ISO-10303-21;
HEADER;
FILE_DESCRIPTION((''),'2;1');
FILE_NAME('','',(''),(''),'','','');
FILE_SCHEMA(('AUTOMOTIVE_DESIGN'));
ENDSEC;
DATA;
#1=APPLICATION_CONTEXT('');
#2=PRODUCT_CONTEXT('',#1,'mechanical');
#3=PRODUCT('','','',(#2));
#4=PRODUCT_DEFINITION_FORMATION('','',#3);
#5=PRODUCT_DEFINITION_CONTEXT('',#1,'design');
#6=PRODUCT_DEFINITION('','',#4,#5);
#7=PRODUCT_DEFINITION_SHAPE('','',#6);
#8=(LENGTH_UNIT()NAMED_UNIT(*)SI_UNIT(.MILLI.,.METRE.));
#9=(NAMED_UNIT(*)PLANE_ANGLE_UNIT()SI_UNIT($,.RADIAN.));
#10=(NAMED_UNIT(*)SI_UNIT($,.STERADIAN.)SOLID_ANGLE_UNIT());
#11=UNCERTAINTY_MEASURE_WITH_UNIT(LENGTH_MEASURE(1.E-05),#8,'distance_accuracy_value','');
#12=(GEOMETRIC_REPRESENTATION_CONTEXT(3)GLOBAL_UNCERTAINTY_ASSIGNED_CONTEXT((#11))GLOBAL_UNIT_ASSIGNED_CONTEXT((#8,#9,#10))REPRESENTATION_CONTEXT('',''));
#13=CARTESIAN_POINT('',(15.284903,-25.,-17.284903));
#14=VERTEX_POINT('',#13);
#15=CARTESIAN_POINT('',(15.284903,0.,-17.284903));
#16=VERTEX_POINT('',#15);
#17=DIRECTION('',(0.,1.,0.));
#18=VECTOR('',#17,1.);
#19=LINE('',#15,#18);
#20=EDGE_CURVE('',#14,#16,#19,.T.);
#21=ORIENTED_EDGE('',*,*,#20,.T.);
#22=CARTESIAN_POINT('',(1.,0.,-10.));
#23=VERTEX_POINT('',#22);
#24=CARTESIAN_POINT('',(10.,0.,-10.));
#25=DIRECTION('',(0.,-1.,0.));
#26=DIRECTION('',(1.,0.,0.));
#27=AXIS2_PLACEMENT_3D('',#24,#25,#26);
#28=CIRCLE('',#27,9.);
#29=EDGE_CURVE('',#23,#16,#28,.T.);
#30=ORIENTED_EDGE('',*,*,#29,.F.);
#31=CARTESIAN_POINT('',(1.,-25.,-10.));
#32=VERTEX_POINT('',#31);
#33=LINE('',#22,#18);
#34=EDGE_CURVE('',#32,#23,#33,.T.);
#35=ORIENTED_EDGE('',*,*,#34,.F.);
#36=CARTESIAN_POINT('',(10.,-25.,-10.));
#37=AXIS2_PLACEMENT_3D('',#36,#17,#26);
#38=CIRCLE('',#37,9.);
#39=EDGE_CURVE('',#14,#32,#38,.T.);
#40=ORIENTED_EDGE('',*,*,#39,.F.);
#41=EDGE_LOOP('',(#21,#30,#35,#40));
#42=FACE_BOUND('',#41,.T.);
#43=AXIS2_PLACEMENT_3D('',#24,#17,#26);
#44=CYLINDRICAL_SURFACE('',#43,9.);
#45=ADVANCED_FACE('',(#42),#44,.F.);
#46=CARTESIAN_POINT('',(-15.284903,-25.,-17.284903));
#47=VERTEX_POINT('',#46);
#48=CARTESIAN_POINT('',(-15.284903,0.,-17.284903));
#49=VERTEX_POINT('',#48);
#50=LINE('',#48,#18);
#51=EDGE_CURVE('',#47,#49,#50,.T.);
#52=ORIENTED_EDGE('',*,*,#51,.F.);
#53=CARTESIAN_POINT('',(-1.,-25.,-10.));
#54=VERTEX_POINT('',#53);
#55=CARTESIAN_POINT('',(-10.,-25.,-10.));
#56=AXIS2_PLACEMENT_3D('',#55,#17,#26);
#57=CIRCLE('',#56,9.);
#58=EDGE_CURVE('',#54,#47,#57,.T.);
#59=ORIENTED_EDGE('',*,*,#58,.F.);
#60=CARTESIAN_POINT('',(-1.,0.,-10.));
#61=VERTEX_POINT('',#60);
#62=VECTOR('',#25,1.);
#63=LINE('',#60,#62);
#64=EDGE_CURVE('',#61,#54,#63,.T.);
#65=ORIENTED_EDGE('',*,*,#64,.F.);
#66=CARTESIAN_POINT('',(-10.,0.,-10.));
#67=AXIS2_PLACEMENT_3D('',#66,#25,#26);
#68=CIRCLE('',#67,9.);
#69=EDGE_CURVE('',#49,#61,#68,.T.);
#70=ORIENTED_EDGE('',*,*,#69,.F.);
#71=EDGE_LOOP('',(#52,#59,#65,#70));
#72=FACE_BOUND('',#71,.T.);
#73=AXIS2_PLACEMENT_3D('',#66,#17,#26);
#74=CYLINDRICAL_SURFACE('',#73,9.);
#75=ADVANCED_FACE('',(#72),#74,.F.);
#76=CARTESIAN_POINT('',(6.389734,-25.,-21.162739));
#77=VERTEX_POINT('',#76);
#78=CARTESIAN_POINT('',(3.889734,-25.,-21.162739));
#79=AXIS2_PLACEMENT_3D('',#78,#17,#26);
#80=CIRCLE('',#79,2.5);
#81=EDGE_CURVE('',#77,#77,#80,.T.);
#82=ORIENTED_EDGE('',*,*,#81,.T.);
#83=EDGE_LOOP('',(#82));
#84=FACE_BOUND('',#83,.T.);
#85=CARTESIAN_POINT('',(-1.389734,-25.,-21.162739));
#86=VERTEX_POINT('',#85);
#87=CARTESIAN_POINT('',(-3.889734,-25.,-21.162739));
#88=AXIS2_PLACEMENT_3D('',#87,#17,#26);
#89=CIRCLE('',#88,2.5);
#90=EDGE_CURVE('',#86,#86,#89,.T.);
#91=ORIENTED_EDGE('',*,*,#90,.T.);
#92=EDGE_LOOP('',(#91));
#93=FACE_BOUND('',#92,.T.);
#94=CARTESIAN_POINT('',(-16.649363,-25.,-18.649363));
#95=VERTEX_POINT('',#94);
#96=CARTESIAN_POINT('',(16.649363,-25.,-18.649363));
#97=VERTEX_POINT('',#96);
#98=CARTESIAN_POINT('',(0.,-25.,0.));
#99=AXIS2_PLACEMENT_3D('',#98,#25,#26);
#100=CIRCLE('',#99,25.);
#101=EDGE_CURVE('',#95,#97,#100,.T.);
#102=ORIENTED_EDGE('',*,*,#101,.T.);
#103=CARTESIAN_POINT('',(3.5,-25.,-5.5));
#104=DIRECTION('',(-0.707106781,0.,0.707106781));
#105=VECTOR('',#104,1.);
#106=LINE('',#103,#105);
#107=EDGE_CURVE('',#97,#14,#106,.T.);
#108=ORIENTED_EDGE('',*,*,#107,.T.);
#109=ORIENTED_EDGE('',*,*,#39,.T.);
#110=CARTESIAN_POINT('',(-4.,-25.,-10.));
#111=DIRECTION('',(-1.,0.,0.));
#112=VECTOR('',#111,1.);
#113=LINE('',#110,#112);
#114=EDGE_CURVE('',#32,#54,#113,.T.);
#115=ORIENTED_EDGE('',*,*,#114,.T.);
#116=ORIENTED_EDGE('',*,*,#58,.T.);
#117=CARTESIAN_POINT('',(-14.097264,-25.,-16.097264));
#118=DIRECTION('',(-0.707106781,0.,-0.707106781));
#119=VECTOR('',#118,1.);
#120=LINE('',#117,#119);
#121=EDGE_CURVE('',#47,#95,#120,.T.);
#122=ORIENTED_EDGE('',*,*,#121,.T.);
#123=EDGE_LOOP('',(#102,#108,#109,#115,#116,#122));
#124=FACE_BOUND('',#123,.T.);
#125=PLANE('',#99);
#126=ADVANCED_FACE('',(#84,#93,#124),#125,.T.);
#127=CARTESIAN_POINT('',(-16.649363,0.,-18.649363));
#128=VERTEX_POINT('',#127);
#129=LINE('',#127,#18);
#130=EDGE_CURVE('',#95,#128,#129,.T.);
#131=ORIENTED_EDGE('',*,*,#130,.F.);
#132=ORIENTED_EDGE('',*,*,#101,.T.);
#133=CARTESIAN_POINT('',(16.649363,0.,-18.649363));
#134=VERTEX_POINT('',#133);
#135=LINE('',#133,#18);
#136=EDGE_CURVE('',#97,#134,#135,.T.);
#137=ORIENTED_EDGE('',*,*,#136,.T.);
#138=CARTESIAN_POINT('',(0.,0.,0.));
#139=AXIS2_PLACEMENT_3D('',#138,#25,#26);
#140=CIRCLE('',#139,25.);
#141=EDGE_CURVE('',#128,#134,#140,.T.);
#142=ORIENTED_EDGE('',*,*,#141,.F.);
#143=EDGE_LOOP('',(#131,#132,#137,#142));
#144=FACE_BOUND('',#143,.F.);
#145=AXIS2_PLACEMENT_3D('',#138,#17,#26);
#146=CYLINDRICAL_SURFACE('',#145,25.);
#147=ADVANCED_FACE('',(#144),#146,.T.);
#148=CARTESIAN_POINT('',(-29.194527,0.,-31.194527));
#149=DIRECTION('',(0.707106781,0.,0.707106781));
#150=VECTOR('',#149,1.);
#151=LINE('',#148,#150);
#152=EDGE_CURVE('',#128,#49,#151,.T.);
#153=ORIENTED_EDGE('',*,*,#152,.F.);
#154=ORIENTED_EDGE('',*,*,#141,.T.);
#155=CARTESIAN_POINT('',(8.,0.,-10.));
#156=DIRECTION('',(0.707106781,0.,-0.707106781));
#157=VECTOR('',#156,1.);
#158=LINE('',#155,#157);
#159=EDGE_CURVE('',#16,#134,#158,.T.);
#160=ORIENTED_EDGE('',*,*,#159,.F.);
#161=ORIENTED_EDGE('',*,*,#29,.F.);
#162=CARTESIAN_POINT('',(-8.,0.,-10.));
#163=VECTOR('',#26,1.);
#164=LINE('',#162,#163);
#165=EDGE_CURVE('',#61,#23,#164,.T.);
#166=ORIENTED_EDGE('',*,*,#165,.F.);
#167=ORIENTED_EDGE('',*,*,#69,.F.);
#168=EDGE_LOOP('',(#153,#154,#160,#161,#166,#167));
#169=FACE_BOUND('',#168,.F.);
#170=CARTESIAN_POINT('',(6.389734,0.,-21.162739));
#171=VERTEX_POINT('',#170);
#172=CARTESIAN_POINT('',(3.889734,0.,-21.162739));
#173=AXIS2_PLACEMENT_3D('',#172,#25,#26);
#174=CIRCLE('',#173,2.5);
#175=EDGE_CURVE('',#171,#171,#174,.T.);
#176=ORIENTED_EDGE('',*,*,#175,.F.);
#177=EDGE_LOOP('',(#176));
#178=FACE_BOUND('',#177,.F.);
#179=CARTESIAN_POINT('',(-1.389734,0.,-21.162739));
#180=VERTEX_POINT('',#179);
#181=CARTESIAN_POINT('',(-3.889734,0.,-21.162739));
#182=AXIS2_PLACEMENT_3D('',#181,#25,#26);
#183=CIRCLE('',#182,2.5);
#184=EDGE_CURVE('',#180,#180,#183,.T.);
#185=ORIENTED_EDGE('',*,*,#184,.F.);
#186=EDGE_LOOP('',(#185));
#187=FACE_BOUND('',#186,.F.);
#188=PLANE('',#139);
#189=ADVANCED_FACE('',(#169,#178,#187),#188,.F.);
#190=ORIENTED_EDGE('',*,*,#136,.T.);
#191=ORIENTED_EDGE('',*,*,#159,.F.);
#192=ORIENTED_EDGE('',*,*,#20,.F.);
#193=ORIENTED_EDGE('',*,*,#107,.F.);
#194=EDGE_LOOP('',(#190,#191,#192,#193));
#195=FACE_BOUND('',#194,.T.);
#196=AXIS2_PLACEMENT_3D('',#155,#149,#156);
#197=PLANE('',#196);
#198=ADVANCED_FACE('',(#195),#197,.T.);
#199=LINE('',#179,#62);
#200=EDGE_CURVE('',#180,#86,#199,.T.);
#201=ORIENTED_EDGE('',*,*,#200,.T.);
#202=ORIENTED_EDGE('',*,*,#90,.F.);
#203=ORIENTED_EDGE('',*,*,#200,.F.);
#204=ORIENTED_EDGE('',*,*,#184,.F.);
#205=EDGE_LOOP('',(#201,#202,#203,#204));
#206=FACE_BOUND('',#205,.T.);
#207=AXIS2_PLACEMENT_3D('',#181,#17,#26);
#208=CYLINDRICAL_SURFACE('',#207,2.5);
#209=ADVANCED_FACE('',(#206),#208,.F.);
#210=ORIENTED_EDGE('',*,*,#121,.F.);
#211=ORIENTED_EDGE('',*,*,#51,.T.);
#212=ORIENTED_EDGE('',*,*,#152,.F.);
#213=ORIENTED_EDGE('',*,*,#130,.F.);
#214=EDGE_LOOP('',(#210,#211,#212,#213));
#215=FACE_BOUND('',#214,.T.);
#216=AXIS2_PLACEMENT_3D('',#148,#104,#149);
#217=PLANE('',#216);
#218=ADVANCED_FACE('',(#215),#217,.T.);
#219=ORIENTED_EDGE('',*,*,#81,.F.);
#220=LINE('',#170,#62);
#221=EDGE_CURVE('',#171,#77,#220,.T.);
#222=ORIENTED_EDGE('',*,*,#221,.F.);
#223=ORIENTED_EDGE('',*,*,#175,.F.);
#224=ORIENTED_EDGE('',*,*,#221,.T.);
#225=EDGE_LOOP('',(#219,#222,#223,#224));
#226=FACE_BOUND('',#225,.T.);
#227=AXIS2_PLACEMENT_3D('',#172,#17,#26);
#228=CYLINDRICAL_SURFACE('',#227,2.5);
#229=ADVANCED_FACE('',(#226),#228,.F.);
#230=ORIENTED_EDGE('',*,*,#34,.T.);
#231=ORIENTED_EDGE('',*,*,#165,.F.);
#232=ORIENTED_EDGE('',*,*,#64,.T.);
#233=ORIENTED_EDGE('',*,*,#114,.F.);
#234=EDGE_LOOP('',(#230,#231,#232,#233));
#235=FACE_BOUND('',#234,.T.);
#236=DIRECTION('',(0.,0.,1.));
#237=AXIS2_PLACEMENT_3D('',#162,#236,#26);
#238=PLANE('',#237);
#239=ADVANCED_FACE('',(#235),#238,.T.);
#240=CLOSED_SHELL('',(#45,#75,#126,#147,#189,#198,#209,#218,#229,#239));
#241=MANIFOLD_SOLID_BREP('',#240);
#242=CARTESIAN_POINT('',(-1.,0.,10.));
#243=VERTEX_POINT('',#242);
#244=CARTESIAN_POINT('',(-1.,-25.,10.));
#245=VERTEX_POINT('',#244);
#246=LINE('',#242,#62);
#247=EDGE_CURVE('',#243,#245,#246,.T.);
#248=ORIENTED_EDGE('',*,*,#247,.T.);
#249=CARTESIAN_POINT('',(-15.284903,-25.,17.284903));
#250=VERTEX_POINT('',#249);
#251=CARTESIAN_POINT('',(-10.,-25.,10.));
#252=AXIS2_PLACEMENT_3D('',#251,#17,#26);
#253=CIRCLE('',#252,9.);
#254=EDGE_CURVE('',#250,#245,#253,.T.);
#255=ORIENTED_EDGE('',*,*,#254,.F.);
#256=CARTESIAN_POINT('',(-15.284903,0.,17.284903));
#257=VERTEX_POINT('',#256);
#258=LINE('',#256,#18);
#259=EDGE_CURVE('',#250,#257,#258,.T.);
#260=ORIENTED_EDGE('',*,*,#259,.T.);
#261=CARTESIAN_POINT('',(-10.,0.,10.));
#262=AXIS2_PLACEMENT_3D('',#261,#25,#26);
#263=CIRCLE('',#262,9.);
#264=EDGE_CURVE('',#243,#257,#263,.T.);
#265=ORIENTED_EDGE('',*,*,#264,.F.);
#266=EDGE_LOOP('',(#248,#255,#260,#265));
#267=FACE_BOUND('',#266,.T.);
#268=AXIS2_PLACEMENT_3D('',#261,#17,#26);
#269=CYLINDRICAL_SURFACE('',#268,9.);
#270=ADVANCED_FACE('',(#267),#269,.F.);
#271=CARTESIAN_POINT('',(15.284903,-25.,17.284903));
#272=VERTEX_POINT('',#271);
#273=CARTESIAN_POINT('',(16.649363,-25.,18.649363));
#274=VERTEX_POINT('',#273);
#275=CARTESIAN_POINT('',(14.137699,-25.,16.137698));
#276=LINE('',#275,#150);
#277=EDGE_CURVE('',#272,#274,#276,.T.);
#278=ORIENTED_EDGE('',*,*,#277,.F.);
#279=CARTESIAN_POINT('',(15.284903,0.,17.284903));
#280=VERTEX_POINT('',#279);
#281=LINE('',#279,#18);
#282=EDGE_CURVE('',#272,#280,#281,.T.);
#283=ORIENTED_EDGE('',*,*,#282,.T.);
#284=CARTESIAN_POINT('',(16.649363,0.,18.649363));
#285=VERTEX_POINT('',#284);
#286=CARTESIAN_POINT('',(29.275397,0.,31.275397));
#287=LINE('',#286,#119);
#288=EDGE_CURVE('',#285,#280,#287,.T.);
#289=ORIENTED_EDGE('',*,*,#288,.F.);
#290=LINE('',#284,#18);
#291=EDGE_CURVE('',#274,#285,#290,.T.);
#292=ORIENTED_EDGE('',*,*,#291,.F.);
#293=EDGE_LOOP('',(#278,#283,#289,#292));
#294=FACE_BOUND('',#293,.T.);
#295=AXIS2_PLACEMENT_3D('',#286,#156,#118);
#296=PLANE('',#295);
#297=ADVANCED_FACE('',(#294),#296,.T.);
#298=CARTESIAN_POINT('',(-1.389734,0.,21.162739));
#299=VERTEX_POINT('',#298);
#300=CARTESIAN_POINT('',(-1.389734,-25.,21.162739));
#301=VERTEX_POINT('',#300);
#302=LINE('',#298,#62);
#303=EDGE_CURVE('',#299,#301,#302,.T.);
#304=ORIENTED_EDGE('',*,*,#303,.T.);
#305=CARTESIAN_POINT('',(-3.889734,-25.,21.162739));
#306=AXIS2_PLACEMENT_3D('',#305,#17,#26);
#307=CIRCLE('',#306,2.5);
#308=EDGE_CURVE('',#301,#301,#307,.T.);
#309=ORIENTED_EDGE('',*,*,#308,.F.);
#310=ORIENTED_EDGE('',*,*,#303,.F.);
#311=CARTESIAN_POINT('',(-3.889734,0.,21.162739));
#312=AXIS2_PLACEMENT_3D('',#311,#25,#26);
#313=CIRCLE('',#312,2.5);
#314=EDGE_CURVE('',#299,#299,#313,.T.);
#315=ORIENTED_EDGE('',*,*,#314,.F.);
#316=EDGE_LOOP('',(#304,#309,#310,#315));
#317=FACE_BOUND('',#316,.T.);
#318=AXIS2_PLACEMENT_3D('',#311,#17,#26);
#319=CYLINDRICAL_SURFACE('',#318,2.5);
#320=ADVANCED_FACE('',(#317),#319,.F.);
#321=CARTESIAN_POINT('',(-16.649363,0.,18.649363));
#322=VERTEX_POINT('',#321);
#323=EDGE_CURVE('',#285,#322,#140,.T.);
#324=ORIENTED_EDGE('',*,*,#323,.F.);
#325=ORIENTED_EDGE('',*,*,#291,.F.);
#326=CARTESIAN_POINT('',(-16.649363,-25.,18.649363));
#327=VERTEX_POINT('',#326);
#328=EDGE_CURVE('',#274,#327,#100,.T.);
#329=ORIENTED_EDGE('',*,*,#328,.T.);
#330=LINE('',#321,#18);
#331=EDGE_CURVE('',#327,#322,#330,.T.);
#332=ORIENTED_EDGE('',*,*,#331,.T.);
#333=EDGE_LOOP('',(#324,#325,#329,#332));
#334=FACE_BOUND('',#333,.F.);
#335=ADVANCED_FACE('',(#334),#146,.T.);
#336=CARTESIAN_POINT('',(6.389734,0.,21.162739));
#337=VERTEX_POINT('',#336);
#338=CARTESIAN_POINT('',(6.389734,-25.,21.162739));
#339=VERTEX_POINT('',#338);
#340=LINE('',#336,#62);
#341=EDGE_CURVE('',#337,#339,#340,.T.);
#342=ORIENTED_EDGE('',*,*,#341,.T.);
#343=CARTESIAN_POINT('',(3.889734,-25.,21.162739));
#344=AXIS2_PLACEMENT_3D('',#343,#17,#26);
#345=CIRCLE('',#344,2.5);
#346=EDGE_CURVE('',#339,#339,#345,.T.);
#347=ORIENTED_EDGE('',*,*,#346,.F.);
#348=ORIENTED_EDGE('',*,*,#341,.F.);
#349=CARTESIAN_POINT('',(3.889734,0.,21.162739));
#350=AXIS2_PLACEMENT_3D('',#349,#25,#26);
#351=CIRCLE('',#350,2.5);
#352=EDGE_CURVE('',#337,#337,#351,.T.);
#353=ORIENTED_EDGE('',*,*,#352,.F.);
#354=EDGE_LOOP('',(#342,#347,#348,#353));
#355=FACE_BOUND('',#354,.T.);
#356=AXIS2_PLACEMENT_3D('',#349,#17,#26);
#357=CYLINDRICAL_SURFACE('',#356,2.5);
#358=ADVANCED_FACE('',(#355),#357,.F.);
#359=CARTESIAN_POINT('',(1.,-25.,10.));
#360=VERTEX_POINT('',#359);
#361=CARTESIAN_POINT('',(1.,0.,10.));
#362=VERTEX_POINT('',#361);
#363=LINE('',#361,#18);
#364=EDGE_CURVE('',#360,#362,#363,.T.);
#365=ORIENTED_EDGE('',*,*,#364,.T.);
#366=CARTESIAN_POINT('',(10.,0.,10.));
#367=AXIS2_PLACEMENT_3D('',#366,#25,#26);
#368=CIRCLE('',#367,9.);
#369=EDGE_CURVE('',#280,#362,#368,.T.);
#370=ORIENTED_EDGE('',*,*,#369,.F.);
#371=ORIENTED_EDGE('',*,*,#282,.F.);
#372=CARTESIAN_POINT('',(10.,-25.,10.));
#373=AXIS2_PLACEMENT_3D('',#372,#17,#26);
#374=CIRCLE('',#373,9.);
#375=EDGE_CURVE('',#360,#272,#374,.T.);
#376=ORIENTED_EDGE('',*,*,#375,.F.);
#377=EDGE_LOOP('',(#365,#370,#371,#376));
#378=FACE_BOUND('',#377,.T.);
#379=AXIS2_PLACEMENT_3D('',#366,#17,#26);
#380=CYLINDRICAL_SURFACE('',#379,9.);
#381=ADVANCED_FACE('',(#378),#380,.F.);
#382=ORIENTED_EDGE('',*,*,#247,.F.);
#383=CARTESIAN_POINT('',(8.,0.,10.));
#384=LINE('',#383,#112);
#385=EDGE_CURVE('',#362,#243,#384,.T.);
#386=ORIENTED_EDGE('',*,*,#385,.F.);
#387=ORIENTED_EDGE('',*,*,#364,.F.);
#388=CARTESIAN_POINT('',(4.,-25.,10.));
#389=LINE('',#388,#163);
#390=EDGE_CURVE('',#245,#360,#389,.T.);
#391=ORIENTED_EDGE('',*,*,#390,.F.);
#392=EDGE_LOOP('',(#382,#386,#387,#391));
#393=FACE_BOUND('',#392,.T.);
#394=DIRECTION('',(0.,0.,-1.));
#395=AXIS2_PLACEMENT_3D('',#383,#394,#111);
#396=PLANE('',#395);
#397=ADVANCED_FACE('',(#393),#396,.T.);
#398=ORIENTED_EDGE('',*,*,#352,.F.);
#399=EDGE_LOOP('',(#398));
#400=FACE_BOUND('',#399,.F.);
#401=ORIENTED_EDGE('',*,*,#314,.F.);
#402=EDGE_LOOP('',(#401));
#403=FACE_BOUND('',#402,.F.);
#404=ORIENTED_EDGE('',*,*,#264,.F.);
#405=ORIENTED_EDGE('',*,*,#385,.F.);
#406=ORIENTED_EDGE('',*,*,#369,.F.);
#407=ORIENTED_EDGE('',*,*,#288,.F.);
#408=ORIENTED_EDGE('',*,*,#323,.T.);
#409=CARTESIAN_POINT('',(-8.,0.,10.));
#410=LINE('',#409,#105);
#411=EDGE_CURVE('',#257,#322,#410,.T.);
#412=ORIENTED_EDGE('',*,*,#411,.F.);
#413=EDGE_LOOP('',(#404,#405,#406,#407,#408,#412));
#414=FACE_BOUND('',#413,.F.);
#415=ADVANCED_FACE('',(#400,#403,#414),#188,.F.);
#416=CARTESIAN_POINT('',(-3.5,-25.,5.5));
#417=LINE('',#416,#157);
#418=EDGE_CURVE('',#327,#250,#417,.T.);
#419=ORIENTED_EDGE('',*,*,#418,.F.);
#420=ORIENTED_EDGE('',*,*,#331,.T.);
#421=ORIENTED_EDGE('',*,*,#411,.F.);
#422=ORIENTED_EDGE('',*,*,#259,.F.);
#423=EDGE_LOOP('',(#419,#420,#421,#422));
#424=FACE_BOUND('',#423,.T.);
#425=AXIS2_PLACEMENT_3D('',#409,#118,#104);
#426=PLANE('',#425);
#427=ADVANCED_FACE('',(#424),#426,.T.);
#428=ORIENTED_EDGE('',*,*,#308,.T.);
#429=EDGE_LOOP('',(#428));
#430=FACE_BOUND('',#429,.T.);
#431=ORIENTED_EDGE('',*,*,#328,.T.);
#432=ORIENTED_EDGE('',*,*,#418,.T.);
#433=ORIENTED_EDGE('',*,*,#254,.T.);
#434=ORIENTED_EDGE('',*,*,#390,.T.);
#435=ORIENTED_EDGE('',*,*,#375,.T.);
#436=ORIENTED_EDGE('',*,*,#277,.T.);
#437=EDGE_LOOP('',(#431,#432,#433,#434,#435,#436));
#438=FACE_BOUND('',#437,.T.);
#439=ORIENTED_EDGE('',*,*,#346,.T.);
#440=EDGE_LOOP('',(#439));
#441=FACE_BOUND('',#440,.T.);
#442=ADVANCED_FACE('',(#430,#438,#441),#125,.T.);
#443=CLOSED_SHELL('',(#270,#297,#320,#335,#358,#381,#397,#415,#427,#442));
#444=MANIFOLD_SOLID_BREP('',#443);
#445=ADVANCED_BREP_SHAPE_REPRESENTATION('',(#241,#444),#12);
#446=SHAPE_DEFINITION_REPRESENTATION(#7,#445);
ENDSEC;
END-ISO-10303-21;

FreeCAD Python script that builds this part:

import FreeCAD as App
import Part
import Sketcher
Q = App.Units.Quantity


def add_polygon(sketch, points):
    """Adds a closed chain of lines whose ends are joined by coincident constraints."""
    first, n = sketch.GeometryCount, len(points)
    for a, b in zip(points, points[1:] + points[:1]):
        sketch.addGeometry(Part.LineSegment(App.Vector(*a, 0), App.Vector(*b, 0)), False)
    for i in range(n):
        sketch.addConstraint(Sketcher.Constraint("Coincident", first + i, 2, first + (i + 1) % n, 1))

doc = App.newDocument("Part")
params = doc.addObject("Spreadsheet::Sheet", "Params")
for row, (alias, value) in enumerate([
    ("sketch1_diameter", "50 mm"),
    ("pad1_length", "25 mm"),
    ("sketch2_diameter", "18 mm"),
    ("pocket1_length", "27.8 mm"),
    ("sketch3_width", "16 mm"),
    ("pocket2_length", "27.8 mm"),
    ("sketch4_diameter", "5 mm"),
    ("pocket3_length", "45.7 mm"),
], start=1):
    params.set(f"A{row}", alias)
    params.set(f"B{row}", "=" + value)
    params.setAlias(f"B{row}", alias)

body = doc.addObject("PartDesign::Body", "Body")
body.AllowCompound = True

sketch1 = doc.addObject("Sketcher::SketchObject", "Sketch")
body.addObject(sketch1)
sketch1.AttachmentSupport = (doc.XZ_Plane, [""])
sketch1.MapMode = "FlatFace"
sketch1.addGeometry(Part.Circle(App.Vector(0, 0, 0), App.Vector(0, 0, 1), 25), False)
sketch1.addConstraint([
    Sketcher.Constraint("Coincident", 0, 3, -1, 1),
    Sketcher.Constraint("Diameter", 0, Q("50 mm")),
])
sketch1.setExpression("Constraints[1]", "Params.sketch1_diameter")
pad1 = doc.addObject("PartDesign::Pad", "Pad")
body.addObject(pad1)
pad1.Profile = sketch1
pad1.setExpression("Length", "Params.pad1_length")

sketch2 = doc.addObject("Sketcher::SketchObject", "Sketch001")
body.addObject(sketch2)
sketch2.AttachmentSupport = (doc.XZ_Plane, [""])
sketch2.MapMode = "FlatFace"
sketch2.addGeometry([
    Part.Circle(App.Vector(10, 10, 0), App.Vector(0, 0, 1), 9),
    Part.Circle(App.Vector(10, -10, 0), App.Vector(0, 0, 1), 9),
    Part.Circle(App.Vector(-10, 10, 0), App.Vector(0, 0, 1), 9),
    Part.Circle(App.Vector(-10, -10, 0), App.Vector(0, 0, 1), 9),
], False)
sketch2.addConstraint([
    Sketcher.Constraint("Equal", 0, 1),
    Sketcher.Constraint("Equal", 1, 2),
    Sketcher.Constraint("Equal", 2, 3),
    Sketcher.Constraint("Symmetric", 1, 3, 2, 3, -1, 1),
    Sketcher.Constraint("Symmetric", 0, 3, 3, 3, -1, 1),
    Sketcher.Constraint("Symmetric", 0, 3, 2, 3, -2),
    Sketcher.Constraint("Diameter", 0, Q("18 mm")),
    Sketcher.Constraint("DistanceX", -1, 1, 0, 3, Q("10 mm")),
    Sketcher.Constraint("DistanceY", -1, 1, 0, 3, Q("10 mm")),
])
sketch2.setExpression("Constraints[6]", "Params.sketch2_diameter")
pocket1 = doc.addObject("PartDesign::Pocket", "Pocket")
body.addObject(pocket1)
pocket1.Profile = sketch2
pocket1.setExpression("Length", "Params.pocket1_length")
pocket1.Reversed = True

sketch3 = doc.addObject("Sketcher::SketchObject", "Sketch002")
body.addObject(sketch3)
sketch3.AttachmentSupport = (doc.XZ_Plane, [""])
sketch3.MapMode = "FlatFace"
add_polygon(sketch3, [(29, 31), (8, 10), (-8, 10), (-29, 31), (-29, -31), (-8, -10), (8, -10), (28, -30)])
sketch3.addConstraint([
    Sketcher.Constraint("Horizontal", 1),
    Sketcher.Constraint("Vertical", 3),
    Sketcher.Constraint("Horizontal", 5),
    Sketcher.Constraint("Symmetric", 0, 2, 4, 2, -1, 1),
    Sketcher.Constraint("Perpendicular", 0, 2),
    Sketcher.Constraint("Perpendicular", 2, 4),
    Sketcher.Constraint("Perpendicular", 4, 6),
    Sketcher.Constraint("Vertical", 1, 2, 4, 2),
    Sketcher.Constraint("Vertical", 0, 2, 5, 2),
    Sketcher.Constraint("Equal", 2, 4),
    Sketcher.Constraint("DistanceX", 1, 2, 1, 1, Q("16 mm")),
    Sketcher.Constraint("DistanceY", -1, 1, 0, 2, Q("10 mm")),
    Sketcher.Constraint("Distance", 7, Q("61.393129 mm")),
    Sketcher.Constraint("DistanceY", 3, 2, 3, 1, Q("62.389054 mm")),
    Sketcher.Constraint("DistanceX", 3, 2, 6, 2, Q("57.301132 mm")),
])
sketch3.setExpression("Constraints[18]", "Params.sketch3_width")
pocket2 = doc.addObject("PartDesign::Pocket", "Pocket001")
body.addObject(pocket2)
pocket2.Profile = sketch3
pocket2.setExpression("Length", "Params.pocket2_length")
pocket2.Reversed = True

sketch4 = doc.addObject("Sketcher::SketchObject", "Sketch003")
body.addObject(sketch4)
sketch4.AttachmentSupport = (doc.XZ_Plane, [""])
sketch4.MapMode = "FlatFace"
sketch4.addGeometry([
    Part.Circle(App.Vector(-3.9, 21.2, 0), App.Vector(0, 0, 1), 2.5),
    Part.Circle(App.Vector(3.9, 21.2, 0), App.Vector(0, 0, 1), 2.5),
    Part.Circle(App.Vector(3.9, -21.2, 0), App.Vector(0, 0, 1), 2.5),
    Part.Circle(App.Vector(-3.9, -21.2, 0), App.Vector(0, 0, 1), 2.5),
], False)
sketch4.addConstraint([
    Sketcher.Constraint("Equal", 0, 1),
    Sketcher.Constraint("Equal", 1, 2),
    Sketcher.Constraint("Equal", 2, 3),
    Sketcher.Constraint("Symmetric", 0, 3, 2, 3, -1, 1),
    Sketcher.Constraint("Symmetric", 1, 3, 3, 3, -1, 1),
    Sketcher.Constraint("Symmetric", 0, 3, 1, 3, -2),
    Sketcher.Constraint("Diameter", 0, Q("5 mm")),
    Sketcher.Constraint("DistanceY", -1, 1, 0, 3, Q("21.162739 mm")),
    Sketcher.Constraint("DistanceX", 0, 3, -1, 1, Q("3.889734 mm")),
])
sketch4.setExpression("Constraints[6]", "Params.sketch4_diameter")
pocket3 = doc.addObject("PartDesign::Pocket", "Pocket002")
body.addObject(pocket3)
pocket3.Profile = sketch4
pocket3.setExpression("Length", "Params.pocket3_length")
pocket3.Reversed = True

doc.recompute()
